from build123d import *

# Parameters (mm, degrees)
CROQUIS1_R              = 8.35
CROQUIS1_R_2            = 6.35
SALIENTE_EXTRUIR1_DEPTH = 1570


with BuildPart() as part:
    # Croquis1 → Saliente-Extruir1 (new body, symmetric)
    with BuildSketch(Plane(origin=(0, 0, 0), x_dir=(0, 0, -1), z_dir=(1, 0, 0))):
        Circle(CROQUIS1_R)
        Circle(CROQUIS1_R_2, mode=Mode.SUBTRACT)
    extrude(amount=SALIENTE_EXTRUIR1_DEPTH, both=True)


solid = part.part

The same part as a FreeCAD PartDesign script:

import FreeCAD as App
import Part
import Sketcher
Q = App.Units.Quantity

doc = App.newDocument("Part")
params = doc.addObject("Spreadsheet::Sheet", "Params")
for row, (alias, value) in enumerate([
    ("sketch1_diameter", "16.7 mm"),
    ("sketch1_diameter2", "12.7 mm"),
    ("pad1_length", "3140 mm"),
], start=1):
    params.set(f"A{row}", alias)
    params.set(f"B{row}", "=" + value)
    params.setAlias(f"B{row}", alias)

body = doc.addObject("PartDesign::Body", "Body")

# Sketch on YZ plane
sketch1 = body.newObject("Sketcher::SketchObject", "Sketch")
sketch1.AttachmentSupport = (doc.getObject("YZ_Plane"), [""])
sketch1.MapMode = "FlatFace"
sketch1.addGeometry([
    Part.Circle(App.Vector(0, 0, 0), App.Vector(0, 0, 1), 8),
    Part.Circle(App.Vector(0, 0, 0), App.Vector(0, 0, 1), 6),
], False)
sketch1.addConstraint([
    Sketcher.Constraint("Coincident", 0, 3, -1, 1),
    Sketcher.Constraint("Coincident", 1, 3, -1, 1),
    Sketcher.Constraint("Diameter", 0, Q("16.7 mm")),
    Sketcher.Constraint("Diameter", 1, Q("12.7 mm")),
])
sketch1.setExpression("Constraints[2]", "Params.sketch1_diameter")
sketch1.setExpression("Constraints[3]", "Params.sketch1_diameter2")
pad1 = body.newObject("PartDesign::Pad", "Pad")
pad1.Profile = sketch1
pad1.setExpression("Length", "Params.pad1_length")
pad1.Midplane = True

doc.recompute()
